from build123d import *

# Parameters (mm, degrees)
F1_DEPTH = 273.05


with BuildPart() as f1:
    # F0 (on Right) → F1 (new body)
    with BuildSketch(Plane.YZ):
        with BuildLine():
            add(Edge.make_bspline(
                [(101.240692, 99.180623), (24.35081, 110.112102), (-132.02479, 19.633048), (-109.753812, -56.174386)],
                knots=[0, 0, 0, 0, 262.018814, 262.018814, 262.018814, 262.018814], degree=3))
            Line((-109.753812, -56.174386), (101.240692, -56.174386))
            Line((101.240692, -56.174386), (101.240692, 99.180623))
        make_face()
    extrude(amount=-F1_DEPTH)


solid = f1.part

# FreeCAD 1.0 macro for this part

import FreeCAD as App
import Part
import Sketcher
from FreeCAD import Vector
Q = App.Units.Quantity

doc = App.newDocument("Part")
body = doc.addObject("PartDesign::Body", "Body")

sketch1 = doc.addObject("Sketcher::SketchObject", "Sketch")
body.addObject(sketch1)
sketch1.AttachmentSupport = (doc.YZ_Plane, [""])
sketch1.MapMode = "FlatFace"
sketch1.addGeometry([
    Part.BSplineCurve([Vector(101.240692, 99.180623, 0), Vector(24.35081, 110.112102, 0), Vector(-132.02479, 19.633048, 0), Vector(-109.753812, -56.174386, 0)], [4, 4], [0, 262.018814], False, 3, [1, 1, 1, 1], False),
    Part.LineSegment(Vector(-109.753812, -56.174386, 0), Vector(101.240692, -56.174386, 0)),
    Part.LineSegment(Vector(101.240692, -56.174386, 0), Vector(101.240692, 99.180623, 0)),
], False)
sketch1.addConstraint([
    Sketcher.Constraint("Block", 0),
    Sketcher.Constraint("Coincident", 0, 2, 1, 1),
    Sketcher.Constraint("Coincident", 1, 2, 2, 1),
    Sketcher.Constraint("Coincident", 2, 2, 0, 1),
    Sketcher.Constraint("Horizontal", 1),
    Sketcher.Constraint("Vertical", 2),
])
pad1 = doc.addObject("PartDesign::Pad", "Pad")
body.addObject(pad1)
pad1.Profile = sketch1
pad1.Length = Q("10.75 in")
pad1.Reversed = True

doc.recompute()
